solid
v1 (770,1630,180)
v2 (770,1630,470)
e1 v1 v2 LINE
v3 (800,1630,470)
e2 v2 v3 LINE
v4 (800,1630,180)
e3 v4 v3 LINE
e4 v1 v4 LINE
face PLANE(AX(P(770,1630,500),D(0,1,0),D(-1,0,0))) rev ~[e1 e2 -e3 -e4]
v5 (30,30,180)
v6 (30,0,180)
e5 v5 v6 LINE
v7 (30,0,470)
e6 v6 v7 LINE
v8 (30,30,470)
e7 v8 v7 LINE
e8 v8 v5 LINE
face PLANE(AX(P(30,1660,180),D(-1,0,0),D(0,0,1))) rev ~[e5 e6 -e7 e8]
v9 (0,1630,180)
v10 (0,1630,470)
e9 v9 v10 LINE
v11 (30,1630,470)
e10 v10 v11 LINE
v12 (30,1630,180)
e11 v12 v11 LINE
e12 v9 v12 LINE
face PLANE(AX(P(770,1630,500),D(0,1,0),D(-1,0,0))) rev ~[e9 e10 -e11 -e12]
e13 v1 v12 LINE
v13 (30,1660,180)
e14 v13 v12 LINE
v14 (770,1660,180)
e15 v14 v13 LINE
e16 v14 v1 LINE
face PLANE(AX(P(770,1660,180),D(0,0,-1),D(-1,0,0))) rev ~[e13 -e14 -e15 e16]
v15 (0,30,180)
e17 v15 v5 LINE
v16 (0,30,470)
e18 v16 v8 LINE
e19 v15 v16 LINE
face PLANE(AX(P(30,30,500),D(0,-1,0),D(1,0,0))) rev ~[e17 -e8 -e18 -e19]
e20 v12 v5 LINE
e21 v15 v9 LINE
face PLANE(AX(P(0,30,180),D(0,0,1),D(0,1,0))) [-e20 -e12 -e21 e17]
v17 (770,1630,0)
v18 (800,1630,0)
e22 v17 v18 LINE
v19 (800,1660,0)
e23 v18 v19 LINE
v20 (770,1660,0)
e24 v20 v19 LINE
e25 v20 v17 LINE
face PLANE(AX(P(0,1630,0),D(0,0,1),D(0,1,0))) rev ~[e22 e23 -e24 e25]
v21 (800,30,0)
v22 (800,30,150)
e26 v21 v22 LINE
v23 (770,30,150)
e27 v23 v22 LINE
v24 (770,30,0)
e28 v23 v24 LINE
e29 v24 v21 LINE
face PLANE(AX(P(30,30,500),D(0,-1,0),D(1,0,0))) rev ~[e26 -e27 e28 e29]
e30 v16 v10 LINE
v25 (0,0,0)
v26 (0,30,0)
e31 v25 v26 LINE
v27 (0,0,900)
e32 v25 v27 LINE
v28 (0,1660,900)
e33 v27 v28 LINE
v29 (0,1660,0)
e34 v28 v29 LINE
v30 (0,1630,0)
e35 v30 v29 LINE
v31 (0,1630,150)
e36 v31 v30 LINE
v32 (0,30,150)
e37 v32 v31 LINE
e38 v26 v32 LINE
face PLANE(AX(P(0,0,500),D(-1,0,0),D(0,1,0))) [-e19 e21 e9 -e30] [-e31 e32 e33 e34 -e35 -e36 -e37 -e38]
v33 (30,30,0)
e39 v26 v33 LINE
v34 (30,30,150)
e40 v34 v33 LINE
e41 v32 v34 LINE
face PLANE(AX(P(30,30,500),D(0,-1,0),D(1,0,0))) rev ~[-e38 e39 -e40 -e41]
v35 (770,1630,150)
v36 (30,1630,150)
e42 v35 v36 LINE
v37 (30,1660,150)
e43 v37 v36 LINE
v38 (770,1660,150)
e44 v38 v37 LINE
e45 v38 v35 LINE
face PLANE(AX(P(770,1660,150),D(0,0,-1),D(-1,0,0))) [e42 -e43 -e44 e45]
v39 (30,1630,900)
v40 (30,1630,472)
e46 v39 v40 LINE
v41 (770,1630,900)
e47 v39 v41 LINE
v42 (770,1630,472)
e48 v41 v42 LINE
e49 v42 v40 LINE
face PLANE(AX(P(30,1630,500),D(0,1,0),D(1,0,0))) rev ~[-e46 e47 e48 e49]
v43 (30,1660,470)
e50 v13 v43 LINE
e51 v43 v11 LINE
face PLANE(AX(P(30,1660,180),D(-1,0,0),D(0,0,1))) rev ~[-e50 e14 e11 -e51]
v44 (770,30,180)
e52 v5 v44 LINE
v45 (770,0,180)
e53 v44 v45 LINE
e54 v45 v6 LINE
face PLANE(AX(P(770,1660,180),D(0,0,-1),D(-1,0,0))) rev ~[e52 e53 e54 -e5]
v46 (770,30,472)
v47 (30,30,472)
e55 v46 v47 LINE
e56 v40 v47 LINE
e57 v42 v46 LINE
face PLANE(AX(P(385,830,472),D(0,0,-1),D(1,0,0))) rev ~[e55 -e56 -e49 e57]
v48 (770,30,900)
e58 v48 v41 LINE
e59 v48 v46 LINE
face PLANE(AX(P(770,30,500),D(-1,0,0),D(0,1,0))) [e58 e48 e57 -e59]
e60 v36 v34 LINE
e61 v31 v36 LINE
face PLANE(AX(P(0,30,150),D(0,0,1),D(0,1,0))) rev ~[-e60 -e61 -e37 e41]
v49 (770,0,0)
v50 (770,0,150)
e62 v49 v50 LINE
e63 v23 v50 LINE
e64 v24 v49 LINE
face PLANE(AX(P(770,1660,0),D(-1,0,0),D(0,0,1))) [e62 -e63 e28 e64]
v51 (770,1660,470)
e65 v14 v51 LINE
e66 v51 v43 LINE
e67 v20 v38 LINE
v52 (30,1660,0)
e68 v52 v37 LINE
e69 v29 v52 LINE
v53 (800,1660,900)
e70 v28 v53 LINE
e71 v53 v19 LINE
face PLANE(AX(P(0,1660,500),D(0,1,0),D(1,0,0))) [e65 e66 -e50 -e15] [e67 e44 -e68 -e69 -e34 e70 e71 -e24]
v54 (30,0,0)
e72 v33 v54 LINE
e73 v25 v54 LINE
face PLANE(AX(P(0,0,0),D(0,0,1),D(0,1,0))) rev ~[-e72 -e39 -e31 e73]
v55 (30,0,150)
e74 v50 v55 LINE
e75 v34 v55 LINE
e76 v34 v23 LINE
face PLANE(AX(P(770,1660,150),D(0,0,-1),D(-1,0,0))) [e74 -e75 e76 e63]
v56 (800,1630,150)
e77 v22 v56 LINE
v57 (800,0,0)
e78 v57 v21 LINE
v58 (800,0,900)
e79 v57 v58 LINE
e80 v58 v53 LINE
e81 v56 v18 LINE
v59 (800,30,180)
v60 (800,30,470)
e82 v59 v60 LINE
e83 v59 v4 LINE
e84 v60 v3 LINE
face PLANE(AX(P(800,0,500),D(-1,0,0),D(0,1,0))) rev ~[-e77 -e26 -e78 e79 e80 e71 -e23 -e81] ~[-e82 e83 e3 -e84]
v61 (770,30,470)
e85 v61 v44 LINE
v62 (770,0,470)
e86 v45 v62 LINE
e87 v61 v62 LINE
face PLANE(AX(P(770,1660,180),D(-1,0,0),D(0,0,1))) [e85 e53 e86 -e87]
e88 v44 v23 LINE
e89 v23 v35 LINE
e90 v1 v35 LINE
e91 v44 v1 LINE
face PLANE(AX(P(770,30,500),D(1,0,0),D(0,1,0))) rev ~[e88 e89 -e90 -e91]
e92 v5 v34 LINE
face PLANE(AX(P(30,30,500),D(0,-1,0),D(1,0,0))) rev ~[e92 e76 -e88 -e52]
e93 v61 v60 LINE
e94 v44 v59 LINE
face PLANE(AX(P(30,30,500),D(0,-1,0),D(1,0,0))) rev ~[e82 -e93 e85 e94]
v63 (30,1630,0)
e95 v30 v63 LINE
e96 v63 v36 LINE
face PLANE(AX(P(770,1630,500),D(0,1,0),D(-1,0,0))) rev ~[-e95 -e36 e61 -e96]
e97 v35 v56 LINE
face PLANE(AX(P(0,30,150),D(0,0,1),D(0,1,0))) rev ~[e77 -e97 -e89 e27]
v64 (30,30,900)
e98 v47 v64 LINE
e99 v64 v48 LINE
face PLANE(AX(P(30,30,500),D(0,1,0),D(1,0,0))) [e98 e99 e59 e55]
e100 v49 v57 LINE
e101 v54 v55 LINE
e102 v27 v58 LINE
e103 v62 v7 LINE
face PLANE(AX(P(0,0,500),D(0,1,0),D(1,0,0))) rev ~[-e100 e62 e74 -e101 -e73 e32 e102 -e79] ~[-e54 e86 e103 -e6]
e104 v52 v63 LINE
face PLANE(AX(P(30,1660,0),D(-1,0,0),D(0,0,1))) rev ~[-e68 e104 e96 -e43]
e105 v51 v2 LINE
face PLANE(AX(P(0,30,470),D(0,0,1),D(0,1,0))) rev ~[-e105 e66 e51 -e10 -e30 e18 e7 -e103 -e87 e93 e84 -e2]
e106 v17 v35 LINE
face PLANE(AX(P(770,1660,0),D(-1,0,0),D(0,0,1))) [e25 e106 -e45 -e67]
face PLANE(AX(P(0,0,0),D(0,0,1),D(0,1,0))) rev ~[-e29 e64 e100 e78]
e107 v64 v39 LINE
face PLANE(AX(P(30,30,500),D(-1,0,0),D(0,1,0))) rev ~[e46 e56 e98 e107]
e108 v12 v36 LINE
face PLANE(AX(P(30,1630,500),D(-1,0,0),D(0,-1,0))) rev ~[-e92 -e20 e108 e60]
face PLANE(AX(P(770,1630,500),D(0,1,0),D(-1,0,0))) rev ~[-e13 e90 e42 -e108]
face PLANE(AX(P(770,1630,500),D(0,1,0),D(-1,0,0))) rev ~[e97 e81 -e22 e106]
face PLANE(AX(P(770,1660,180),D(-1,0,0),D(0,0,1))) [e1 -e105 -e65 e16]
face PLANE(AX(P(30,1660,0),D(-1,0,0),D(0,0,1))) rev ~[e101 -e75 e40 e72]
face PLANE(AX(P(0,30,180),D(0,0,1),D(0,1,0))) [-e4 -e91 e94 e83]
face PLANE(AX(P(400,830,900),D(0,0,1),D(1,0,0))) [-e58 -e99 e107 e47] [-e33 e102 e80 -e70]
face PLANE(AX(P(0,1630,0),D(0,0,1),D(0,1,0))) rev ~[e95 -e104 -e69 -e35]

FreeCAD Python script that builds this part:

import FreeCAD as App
import Part
import Sketcher

doc = App.newDocument("Part")
body = doc.addObject("PartDesign::Body", "Body")

# Sketch on YZ plane
sketch1 = body.newObject("Sketcher::SketchObject", "Sketch")
sketch1.AttachmentSupport = (doc.getObject("YZ_Plane"), [""])
sketch1.MapMode = "FlatFace"
sketch1.addGeometry(Part.LineSegment(App.Vector(0, 500, 0), App.Vector(0, 0, 0)), False)
sketch1.addGeometry(Part.LineSegment(App.Vector(0, 0, 0), App.Vector(30, 0, 0)), False)
sketch1.addGeometry(Part.LineSegment(App.Vector(30, 0, 0), App.Vector(30, 150, 0)), False)
sketch1.addGeometry(Part.LineSegment(App.Vector(30, 150, 0), App.Vector(1630, 150, 0)), False)
sketch1.addGeometry(Part.LineSegment(App.Vector(1630, 150, 0), App.Vector(1630, 0, 0)), False)
sketch1.addGeometry(Part.LineSegment(App.Vector(1630, 0, 0), App.Vector(1660, 0, 0)), False)
sketch1.addGeometry(Part.LineSegment(App.Vector(1660, 0, 0), App.Vector(1660, 500, 0)), False)
sketch1.addGeometry(Part.LineSegment(App.Vector(1660, 500, 0), App.Vector(0, 500, 0)), False)
sketch1.addGeometry(Part.LineSegment(App.Vector(1630, 180, 0), App.Vector(30, 180, 0)), False)
sketch1.addGeometry(Part.LineSegment(App.Vector(30, 180, 0), App.Vector(30, 470, 0)), False)
sketch1.addGeometry(Part.LineSegment(App.Vector(30, 470, 0), App.Vector(1630, 470, 0)), False)
sketch1.addGeometry(Part.LineSegment(App.Vector(1630, 470, 0), App.Vector(1630, 180, 0)), False)
sketch1.addConstraint(Sketcher.Constraint("Coincident", 0, 2, 1, 1))
sketch1.addConstraint(Sketcher.Constraint("Coincident", 1, 2, 2, 1))
sketch1.addConstraint(Sketcher.Constraint("Coincident", 2, 2, 3, 1))
sketch1.addConstraint(Sketcher.Constraint("Coincident", 3, 2, 4, 1))
sketch1.addConstraint(Sketcher.Constraint("Coincident", 4, 2, 5, 1))
sketch1.addConstraint(Sketcher.Constraint("Coincident", 5, 2, 6, 1))
sketch1.addConstraint(Sketcher.Constraint("Coincident", 6, 2, 7, 1))
sketch1.addConstraint(Sketcher.Constraint("Coincident", 7, 2, 0, 1))
sketch1.addConstraint(Sketcher.Constraint("Coincident", 8, 2, 9, 1))
sketch1.addConstraint(Sketcher.Constraint("Coincident", 9, 2, 10, 1))
sketch1.addConstraint(Sketcher.Constraint("Coincident", 10, 2, 11, 1))
sketch1.addConstraint(Sketcher.Constraint("Coincident", 11, 2, 8, 1))
sketch1.addConstraint(Sketcher.Constraint("Vertical", 0))
sketch1.addConstraint(Sketcher.Constraint("Horizontal", 1))
sketch1.addConstraint(Sketcher.Constraint("Vertical", 2))
sketch1.addConstraint(Sketcher.Constraint("Horizontal", 3))
sketch1.addConstraint(Sketcher.Constraint("Vertical", 4))
sketch1.addConstraint(Sketcher.Constraint("Horizontal", 5))
sketch1.addConstraint(Sketcher.Constraint("Vertical", 6))
sketch1.addConstraint(Sketcher.Constraint("Horizontal", 7))
sketch1.addConstraint(Sketcher.Constraint("Horizontal", 8))
sketch1.addConstraint(Sketcher.Constraint("Vertical", 9))
sketch1.addConstraint(Sketcher.Constraint("Horizontal", 10))
sketch1.addConstraint(Sketcher.Constraint("Vertical", 11))
sketch1.addConstraint(Sketcher.Constraint("Coincident", 0, 2, -1, 1))
sketch1.addConstraint(Sketcher.Constraint("PointOnObject", 4, 2, -1))
sketch1.addConstraint(Sketcher.Constraint("Vertical", 2, 2, 8, 2))
sketch1.addConstraint(Sketcher.Constraint("Vertical", 4, 2, 10, 2))
sketch1.addConstraint(Sketcher.Constraint("Equal", 1, 5))
sketch1.addConstraint(Sketcher.Constraint("DistanceX", 1, 1, 1, 2, 30.0))
sketch1.addConstraint(Sketcher.Constraint("DistanceX", 3, 1, 3, 2, 1600.0))
sketch1.addConstraint(Sketcher.Constraint("DistanceY", 0, 2, 0, 1, 500.0))
sketch1.addConstraint(Sketcher.Constraint("DistanceY", 2, 1, 2, 2, 150.0))
sketch1.addConstraint(Sketcher.Constraint("DistanceY", 9, 1, 9, 2, 290.0))
sketch1.addConstraint(Sketcher.Constraint("DistanceY", -1, 1, 8, 2, 180.0))
pad1 = body.newObject("PartDesign::Pad", "Pad")
pad1.Profile = sketch1
pad1.Length = 800

# Sketch on XY plane
sketch2 = body.newObject("Sketcher::SketchObject", "Sketch001")
sketch2.AttachmentSupport = (doc.getObject("XY_Plane"), [""])
sketch2.MapMode = "FlatFace"
sketch2.AttachmentOffset = App.Placement(App.Vector(0, 0, 500), App.Rotation())
sketch2.addGeometry(Part.LineSegment(App.Vector(30, 30, 0), App.Vector(770, 30, 0)), False)
sketch2.addGeometry(Part.LineSegment(App.Vector(770, 30, 0), App.Vector(770, 1630, 0)), False)
sketch2.addGeometry(Part.LineSegment(App.Vector(770, 1630, 0), App.Vector(30, 1630, 0)), False)
sketch2.addGeometry(Part.LineSegment(App.Vector(30, 1630, 0), App.Vector(30, 30, 0)), False)
sketch2.addConstraint(Sketcher.Constraint("Coincident", 0, 2, 1, 1))
sketch2.addConstraint(Sketcher.Constraint("Coincident", 1, 2, 2, 1))
sketch2.addConstraint(Sketcher.Constraint("Coincident", 2, 2, 3, 1))
sketch2.addConstraint(Sketcher.Constraint("Coincident", 3, 2, 0, 1))
sketch2.addConstraint(Sketcher.Constraint("Horizontal", 0))
sketch2.addConstraint(Sketcher.Constraint("Vertical", 1))
sketch2.addConstraint(Sketcher.Constraint("Horizontal", 2))
sketch2.addConstraint(Sketcher.Constraint("Vertical", 3))
sketch2.addConstraint(Sketcher.Constraint("DistanceX", 0, 1, 0, 2, 740.0))
sketch2.addConstraint(Sketcher.Constraint("DistanceY", 1, 1, 1, 2, 1600.0))
sketch2.addConstraint(Sketcher.Constraint("DistanceX", -1, 1, 0, 2, 770.0))
sketch2.addConstraint(Sketcher.Constraint("DistanceY", -1, 1, 0, 2, 30.0))
pocket1 = body.newObject("PartDesign::Pocket", "Pocket")
pocket1.Profile = sketch2
pocket1.Type = "ThroughAll"

# Sketch on XZ plane
sketch3 = body.newObject("Sketcher::SketchObject", "Sketch002")
sketch3.AttachmentSupport = (doc.getObject("XZ_Plane"), [""])
sketch3.MapMode = "FlatFace"
sketch3.AttachmentOffset = App.Placement(App.Vector(0, 0, -1660), App.Rotation())
sketch3.addGeometry(Part.LineSegment(App.Vector(770, 150, 0), App.Vector(770, 0, 0)), False)
sketch3.addGeometry(Part.LineSegment(App.Vector(770, 0, 0), App.Vector(30, 0, 0)), False)
sketch3.addGeometry(Part.LineSegment(App.Vector(30, 0, 0), App.Vector(30, 150, 0)), False)
sketch3.addGeometry(Part.LineSegment(App.Vector(30, 150, 0), App.Vector(770, 150, 0)), False)
sketch3.addGeometry(Part.LineSegment(App.Vector(770, 470, 0), App.Vector(770, 180, 0)), False)
sketch3.addGeometry(Part.LineSegment(App.Vector(770, 180, 0), App.Vector(30, 180, 0)), False)
sketch3.addGeometry(Part.LineSegment(App.Vector(30, 180, 0), App.Vector(30, 470, 0)), False)
sketch3.addGeometry(Part.LineSegment(App.Vector(30, 470, 0), App.Vector(770, 470, 0)), False)
sketch3.addConstraint(Sketcher.Constraint("Coincident", 0, 2, 1, 1))
sketch3.addConstraint(Sketcher.Constraint("Coincident", 1, 2, 2, 1))
sketch3.addConstraint(Sketcher.Constraint("Coincident", 2, 2, 3, 1))
sketch3.addConstraint(Sketcher.Constraint("Coincident", 3, 2, 0, 1))
sketch3.addConstraint(Sketcher.Constraint("Coincident", 4, 2, 5, 1))
sketch3.addConstraint(Sketcher.Constraint("Coincident", 5, 2, 6, 1))
sketch3.addConstraint(Sketcher.Constraint("Coincident", 6, 2, 7, 1))
sketch3.addConstraint(Sketcher.Constraint("Coincident", 7, 2, 4, 1))
sketch3.addConstraint(Sketcher.Constraint("Vertical", 0))
sketch3.addConstraint(Sketcher.Constraint("Horizontal", 1))
sketch3.addConstraint(Sketcher.Constraint("Vertical", 2))
sketch3.addConstraint(Sketcher.Constraint("Horizontal", 3))
sketch3.addConstraint(Sketcher.Constraint("Vertical", 4))
sketch3.addConstraint(Sketcher.Constraint("Horizontal", 5))
sketch3.addConstraint(Sketcher.Constraint("Vertical", 6))
sketch3.addConstraint(Sketcher.Constraint("Horizontal", 7))
sketch3.addConstraint(Sketcher.Constraint("PointOnObject", 0, 2, -1))
sketch3.addConstraint(Sketcher.Constraint("Vertical", 3, 2, 4, 2))
sketch3.addConstraint(Sketcher.Constraint("Vertical", 2, 2, 5, 2))
sketch3.addConstraint(Sketcher.Constraint("DistanceX", 1, 2, 1, 1, 740.0))
sketch3.addConstraint(Sketcher.Constraint("DistanceY", 0, 2, 0, 1, 150.0))
sketch3.addConstraint(Sketcher.Constraint("DistanceY", 4, 2, 4, 1, 290.0))
sketch3.addConstraint(Sketcher.Constraint("DistanceX", -1, 1, 0, 2, 770.0))
sketch3.addConstraint(Sketcher.Constraint("DistanceY", -1, 1, 4, 2, 180.0))
pocket2 = body.newObject("PartDesign::Pocket", "Pocket001")
pocket2.Profile = sketch3
pocket2.Type = "ThroughAll"
pocket2.Reversed = True

# Sketch on XY plane
sketch4 = body.newObject("Sketcher::SketchObject", "Sketch003")
sketch4.AttachmentSupport = (doc.getObject("XY_Plane"), [""])
sketch4.MapMode = "FlatFace"
sketch4.AttachmentOffset = App.Placement(App.Vector(0, 0, 500), App.Rotation())
sketch4.addGeometry(Part.LineSegment(App.Vector(0, 1660, 0), App.Vector(0, 0, 0)), False)
sketch4.addGeometry(Part.LineSegment(App.Vector(0, 0, 0), App.Vector(800, 0, 0)), False)
sketch4.addGeometry(Part.LineSegment(App.Vector(800, 0, 0), App.Vector(800, 1660, 0)), False)
sketch4.addGeometry(Part.LineSegment(App.Vector(800, 1660, 0), App.Vector(0, 1660, 0)), False)
sketch4.addGeometry(Part.LineSegment(App.Vector(770, 30, 0), App.Vector(30, 30, 0)), False)
sketch4.addGeometry(Part.LineSegment(App.Vector(30, 30, 0), App.Vector(30, 1630, 0)), False)
sketch4.addGeometry(Part.LineSegment(App.Vector(30, 1630, 0), App.Vector(770, 1630, 0)), False)
sketch4.addGeometry(Part.LineSegment(App.Vector(770, 1630, 0), App.Vector(770, 30, 0)), False)
sketch4.addConstraint(Sketcher.Constraint("Coincident", 0, 2, 1, 1))
sketch4.addConstraint(Sketcher.Constraint("Coincident", 1, 2, 2, 1))
sketch4.addConstraint(Sketcher.Constraint("Coincident", 2, 2, 3, 1))
sketch4.addConstraint(Sketcher.Constraint("Coincident", 3, 2, 0, 1))
sketch4.addConstraint(Sketcher.Constraint("Coincident", 4, 2, 5, 1))
sketch4.addConstraint(Sketcher.Constraint("Coincident", 5, 2, 6, 1))
sketch4.addConstraint(Sketcher.Constraint("Coincident", 6, 2, 7, 1))
sketch4.addConstraint(Sketcher.Constraint("Coincident", 7, 2, 4, 1))
sketch4.addConstraint(Sketcher.Constraint("Vertical", 0))
sketch4.addConstraint(Sketcher.Constraint("Horizontal", 1))
sketch4.addConstraint(Sketcher.Constraint("Vertical", 2))
sketch4.addConstraint(Sketcher.Constraint("Horizontal", 3))
sketch4.addConstraint(Sketcher.Constraint("Horizontal", 4))
sketch4.addConstraint(Sketcher.Constraint("Vertical", 5))
sketch4.addConstraint(Sketcher.Constraint("Horizontal", 6))
sketch4.addConstraint(Sketcher.Constraint("Vertical", 7))
sketch4.addConstraint(Sketcher.Constraint("Coincident", 0, 2, -1, 1))
sketch4.addConstraint(Sketcher.Constraint("DistanceX", 1, 1, 1, 2, 800.0))
sketch4.addConstraint(Sketcher.Constraint("DistanceX", 4, 2, 4, 1, 740.0))
sketch4.addConstraint(Sketcher.Constraint("DistanceY", 0, 2, 0, 1, 1660.0))
sketch4.addConstraint(Sketcher.Constraint("DistanceY", 5, 1, 5, 2, 1600.0))
sketch4.addConstraint(Sketcher.Constraint("DistanceX", -1, 1, 4, 2, 30.0))
sketch4.addConstraint(Sketcher.Constraint("DistanceY", -1, 1, 4, 2, 30.0))
pad2 = body.newObject("PartDesign::Pad", "Pad001")
pad2.Profile = sketch4
pad2.Length = 400

# Sketch on XY plane
sketch5 = body.newObject("Sketcher::SketchObject", "Sketch004")
sketch5.AttachmentSupport = (doc.getObject("XY_Plane"), [""])
sketch5.MapMode = "FlatFace"
sketch5.AttachmentOffset = App.Placement(App.Vector(0, 0, 470), App.Rotation())
sketch5.addGeometry(Part.LineSegment(App.Vector(0, 0, 0), App.Vector(0, 1660, 0)), False)
sketch5.addGeometry(Part.LineSegment(App.Vector(0, 1660, 0), App.Vector(770, 1660, 0)), False)
sketch5.addGeometry(Part.LineSegment(App.Vector(770, 1660, 0), App.Vector(770, 0, 0)), False)
sketch5.addGeometry(Part.LineSegment(App.Vector(770, 0, 0), App.Vector(0, 0, 0)), False)
sketch5.addConstraint(Sketcher.Constraint("Coincident", 0, 2, 1, 1))
sketch5.addConstraint(Sketcher.Constraint("Coincident", 1, 2, 2, 1))
sketch5.addConstraint(Sketcher.Constraint("Coincident", 2, 2, 3, 1))
sketch5.addConstraint(Sketcher.Constraint("Coincident", 3, 2, 0, 1))
sketch5.addConstraint(Sketcher.Constraint("Vertical", 0))
sketch5.addConstraint(Sketcher.Constraint("Horizontal", 1))
sketch5.addConstraint(Sketcher.Constraint("Vertical", 2))
sketch5.addConstraint(Sketcher.Constraint("Horizontal", 3))
sketch5.addConstraint(Sketcher.Constraint("Coincident", 3, 2, -1, 1))
sketch5.addConstraint(Sketcher.Constraint("DistanceX", 1, 1, 1, 2, 770.0))
sketch5.addConstraint(Sketcher.Constraint("DistanceY", 0, 1, 0, 2, 1660.0))
pad3 = body.newObject("PartDesign::Pad", "Pad002")
pad3.Profile = sketch5
pad3.Length = 2

doc.recompute()
